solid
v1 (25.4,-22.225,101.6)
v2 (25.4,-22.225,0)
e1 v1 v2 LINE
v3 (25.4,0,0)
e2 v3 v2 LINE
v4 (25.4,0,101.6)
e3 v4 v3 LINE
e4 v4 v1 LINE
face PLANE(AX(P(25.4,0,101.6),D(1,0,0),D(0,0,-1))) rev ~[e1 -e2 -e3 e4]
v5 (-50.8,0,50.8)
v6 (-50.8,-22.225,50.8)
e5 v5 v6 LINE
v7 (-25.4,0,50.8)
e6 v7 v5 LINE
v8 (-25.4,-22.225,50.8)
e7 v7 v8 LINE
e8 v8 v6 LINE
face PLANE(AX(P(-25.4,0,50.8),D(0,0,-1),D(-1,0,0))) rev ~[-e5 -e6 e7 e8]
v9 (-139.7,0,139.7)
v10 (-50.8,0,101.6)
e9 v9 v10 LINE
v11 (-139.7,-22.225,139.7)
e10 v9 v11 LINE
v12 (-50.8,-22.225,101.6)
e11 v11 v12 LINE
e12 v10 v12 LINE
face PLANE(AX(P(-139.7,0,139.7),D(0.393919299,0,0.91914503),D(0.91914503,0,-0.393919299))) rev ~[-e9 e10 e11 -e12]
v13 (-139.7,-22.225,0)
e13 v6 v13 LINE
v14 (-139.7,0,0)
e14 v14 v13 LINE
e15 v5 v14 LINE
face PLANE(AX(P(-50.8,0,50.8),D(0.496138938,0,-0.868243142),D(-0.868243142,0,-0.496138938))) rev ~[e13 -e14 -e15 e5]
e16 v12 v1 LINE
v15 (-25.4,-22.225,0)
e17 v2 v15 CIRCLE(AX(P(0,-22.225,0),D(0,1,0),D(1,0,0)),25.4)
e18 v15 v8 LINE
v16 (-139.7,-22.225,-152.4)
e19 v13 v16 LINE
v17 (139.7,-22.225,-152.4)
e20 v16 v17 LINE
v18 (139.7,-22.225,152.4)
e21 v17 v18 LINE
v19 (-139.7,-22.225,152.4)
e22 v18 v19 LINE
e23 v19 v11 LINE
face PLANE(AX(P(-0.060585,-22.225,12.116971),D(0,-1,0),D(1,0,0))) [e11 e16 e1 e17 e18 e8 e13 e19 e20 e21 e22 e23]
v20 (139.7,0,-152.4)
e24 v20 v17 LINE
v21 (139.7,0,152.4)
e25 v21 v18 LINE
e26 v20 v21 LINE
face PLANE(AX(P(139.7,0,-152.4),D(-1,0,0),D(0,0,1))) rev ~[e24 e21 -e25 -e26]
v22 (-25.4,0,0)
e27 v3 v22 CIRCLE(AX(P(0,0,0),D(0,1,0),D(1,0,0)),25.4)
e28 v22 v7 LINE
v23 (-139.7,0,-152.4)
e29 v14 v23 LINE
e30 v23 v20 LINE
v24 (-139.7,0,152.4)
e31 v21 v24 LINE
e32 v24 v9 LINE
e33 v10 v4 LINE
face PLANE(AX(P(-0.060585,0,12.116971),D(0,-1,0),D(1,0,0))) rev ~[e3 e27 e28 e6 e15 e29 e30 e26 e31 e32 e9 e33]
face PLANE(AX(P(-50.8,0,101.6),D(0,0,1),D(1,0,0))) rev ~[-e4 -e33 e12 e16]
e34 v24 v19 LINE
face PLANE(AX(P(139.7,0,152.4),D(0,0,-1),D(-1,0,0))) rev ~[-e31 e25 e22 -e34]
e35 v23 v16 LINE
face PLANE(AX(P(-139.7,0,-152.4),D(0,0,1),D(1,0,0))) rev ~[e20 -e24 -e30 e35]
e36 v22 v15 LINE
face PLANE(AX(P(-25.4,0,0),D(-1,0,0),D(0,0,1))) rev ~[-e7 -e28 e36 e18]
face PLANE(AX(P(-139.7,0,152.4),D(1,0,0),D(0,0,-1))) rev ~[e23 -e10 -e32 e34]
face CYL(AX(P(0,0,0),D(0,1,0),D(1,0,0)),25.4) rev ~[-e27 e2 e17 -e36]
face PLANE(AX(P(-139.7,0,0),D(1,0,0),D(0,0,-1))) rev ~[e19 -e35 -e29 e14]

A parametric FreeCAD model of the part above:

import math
import FreeCAD as App
import Part
import Sketcher

V = App.Vector
Q = App.Units.Quantity

doc = App.newDocument("Part")
body = doc.addObject("PartDesign::Body", "Body")

sketch1 = body.newObject("Sketcher::SketchObject", "Sketch")
sketch1.AttachmentSupport = (doc.getObject("XZ_Plane"), [""])
sketch1.MapMode = "FlatFace"
sketch1.addGeometry([
    Part.LineSegment(V(139.7, -152.4, 0), V(139.7, 152.4, 0)),
    Part.LineSegment(V(139.7, 152.4, 0), V(-139.7, 152.4, 0)),
    Part.LineSegment(V(-139.7, 152.4, 0), V(-139.7, 139.7, 0)),
    Part.LineSegment(V(-139.7, 139.7, 0), V(-50.8, 101.6, 0)),
    Part.LineSegment(V(-50.8, 101.6, 0), V(25.4, 101.6, 0)),
    Part.LineSegment(V(25.4, 101.6, 0), V(25.4, 0, 0)),
    Part.ArcOfCircle(Part.Circle(V(0, 0, 0), V(0, 0, 1), 25.4), math.radians(180), math.radians(360)),
    Part.LineSegment(V(-25.4, 0, 0), V(-25.4, 50.8, 0)),
    Part.LineSegment(V(-25.4, 50.8, 0), V(-50.8, 50.8, 0)),
    Part.LineSegment(V(-50.8, 50.8, 0), V(-139.7, 0, 0)),
    Part.LineSegment(V(-139.7, 0, 0), V(-139.7, -152.4, 0)),
    Part.LineSegment(V(-139.7, -152.4, 0), V(139.7, -152.4, 0)),
], False)
sketch1.addConstraint([
    Sketcher.Constraint("Coincident", 0, 2, 1, 1),
    Sketcher.Constraint("Coincident", 1, 2, 2, 1),
    Sketcher.Constraint("Coincident", 2, 2, 3, 1),
    Sketcher.Constraint("Coincident", 3, 2, 4, 1),
    Sketcher.Constraint("Coincident", 4, 2, 5, 1),
    Sketcher.Constraint("Tangent", 5, 2, 6, 2),
    Sketcher.Constraint("Tangent", 6, 1, 7, 1),
    Sketcher.Constraint("Coincident", 7, 2, 8, 1),
    Sketcher.Constraint("Coincident", 8, 2, 9, 1),
    Sketcher.Constraint("Coincident", 9, 2, 10, 1),
    Sketcher.Constraint("Coincident", 10, 2, 11, 1),
    Sketcher.Constraint("Coincident", 11, 2, 0, 1),
    Sketcher.Constraint("Vertical", 0),
    Sketcher.Constraint("Horizontal", 1),
    Sketcher.Constraint("Vertical", 2),
    Sketcher.Constraint("Horizontal", 4),
    Sketcher.Constraint("Vertical", 5),
    Sketcher.Constraint("Vertical", 7),
    Sketcher.Constraint("Horizontal", 8),
    Sketcher.Constraint("Vertical", 10),
    Sketcher.Constraint("Horizontal", 11),
    Sketcher.Constraint("Coincident", 6, 3, -1, 1),
    Sketcher.Constraint("Symmetric", 0, 2, 10, 2, -1, 1),
    Sketcher.Constraint("PointOnObject", 9, 2, -1),
    Sketcher.Constraint("Vertical", 3, 2, 8, 2),
    Sketcher.Constraint("Vertical", 2, 2, 9, 2),
    Sketcher.Constraint("Radius", 6, Q("1 in")),
    Sketcher.Constraint("DistanceX", 1, 2, 1, 1, Q("11 in")),
    Sketcher.Constraint("DistanceX", 4, 1, 4, 2, Q("3 in")),
    Sketcher.Constraint("DistanceY", 0, 1, 0, 2, Q("12 in")),
    Sketcher.Constraint("DistanceY", 5, 2, 5, 1, Q("4 in")),
    Sketcher.Constraint("DistanceY", 7, 1, 7, 2, Q("2 in")),
    Sketcher.Constraint("DistanceY", 2, 2, 2, 1, Q("0.5 in")),
])
pad1 = body.newObject("PartDesign::Pad", "Pad")
pad1.Profile = sketch1
pad1.Length = Q("0.875 in")

doc.recompute()
